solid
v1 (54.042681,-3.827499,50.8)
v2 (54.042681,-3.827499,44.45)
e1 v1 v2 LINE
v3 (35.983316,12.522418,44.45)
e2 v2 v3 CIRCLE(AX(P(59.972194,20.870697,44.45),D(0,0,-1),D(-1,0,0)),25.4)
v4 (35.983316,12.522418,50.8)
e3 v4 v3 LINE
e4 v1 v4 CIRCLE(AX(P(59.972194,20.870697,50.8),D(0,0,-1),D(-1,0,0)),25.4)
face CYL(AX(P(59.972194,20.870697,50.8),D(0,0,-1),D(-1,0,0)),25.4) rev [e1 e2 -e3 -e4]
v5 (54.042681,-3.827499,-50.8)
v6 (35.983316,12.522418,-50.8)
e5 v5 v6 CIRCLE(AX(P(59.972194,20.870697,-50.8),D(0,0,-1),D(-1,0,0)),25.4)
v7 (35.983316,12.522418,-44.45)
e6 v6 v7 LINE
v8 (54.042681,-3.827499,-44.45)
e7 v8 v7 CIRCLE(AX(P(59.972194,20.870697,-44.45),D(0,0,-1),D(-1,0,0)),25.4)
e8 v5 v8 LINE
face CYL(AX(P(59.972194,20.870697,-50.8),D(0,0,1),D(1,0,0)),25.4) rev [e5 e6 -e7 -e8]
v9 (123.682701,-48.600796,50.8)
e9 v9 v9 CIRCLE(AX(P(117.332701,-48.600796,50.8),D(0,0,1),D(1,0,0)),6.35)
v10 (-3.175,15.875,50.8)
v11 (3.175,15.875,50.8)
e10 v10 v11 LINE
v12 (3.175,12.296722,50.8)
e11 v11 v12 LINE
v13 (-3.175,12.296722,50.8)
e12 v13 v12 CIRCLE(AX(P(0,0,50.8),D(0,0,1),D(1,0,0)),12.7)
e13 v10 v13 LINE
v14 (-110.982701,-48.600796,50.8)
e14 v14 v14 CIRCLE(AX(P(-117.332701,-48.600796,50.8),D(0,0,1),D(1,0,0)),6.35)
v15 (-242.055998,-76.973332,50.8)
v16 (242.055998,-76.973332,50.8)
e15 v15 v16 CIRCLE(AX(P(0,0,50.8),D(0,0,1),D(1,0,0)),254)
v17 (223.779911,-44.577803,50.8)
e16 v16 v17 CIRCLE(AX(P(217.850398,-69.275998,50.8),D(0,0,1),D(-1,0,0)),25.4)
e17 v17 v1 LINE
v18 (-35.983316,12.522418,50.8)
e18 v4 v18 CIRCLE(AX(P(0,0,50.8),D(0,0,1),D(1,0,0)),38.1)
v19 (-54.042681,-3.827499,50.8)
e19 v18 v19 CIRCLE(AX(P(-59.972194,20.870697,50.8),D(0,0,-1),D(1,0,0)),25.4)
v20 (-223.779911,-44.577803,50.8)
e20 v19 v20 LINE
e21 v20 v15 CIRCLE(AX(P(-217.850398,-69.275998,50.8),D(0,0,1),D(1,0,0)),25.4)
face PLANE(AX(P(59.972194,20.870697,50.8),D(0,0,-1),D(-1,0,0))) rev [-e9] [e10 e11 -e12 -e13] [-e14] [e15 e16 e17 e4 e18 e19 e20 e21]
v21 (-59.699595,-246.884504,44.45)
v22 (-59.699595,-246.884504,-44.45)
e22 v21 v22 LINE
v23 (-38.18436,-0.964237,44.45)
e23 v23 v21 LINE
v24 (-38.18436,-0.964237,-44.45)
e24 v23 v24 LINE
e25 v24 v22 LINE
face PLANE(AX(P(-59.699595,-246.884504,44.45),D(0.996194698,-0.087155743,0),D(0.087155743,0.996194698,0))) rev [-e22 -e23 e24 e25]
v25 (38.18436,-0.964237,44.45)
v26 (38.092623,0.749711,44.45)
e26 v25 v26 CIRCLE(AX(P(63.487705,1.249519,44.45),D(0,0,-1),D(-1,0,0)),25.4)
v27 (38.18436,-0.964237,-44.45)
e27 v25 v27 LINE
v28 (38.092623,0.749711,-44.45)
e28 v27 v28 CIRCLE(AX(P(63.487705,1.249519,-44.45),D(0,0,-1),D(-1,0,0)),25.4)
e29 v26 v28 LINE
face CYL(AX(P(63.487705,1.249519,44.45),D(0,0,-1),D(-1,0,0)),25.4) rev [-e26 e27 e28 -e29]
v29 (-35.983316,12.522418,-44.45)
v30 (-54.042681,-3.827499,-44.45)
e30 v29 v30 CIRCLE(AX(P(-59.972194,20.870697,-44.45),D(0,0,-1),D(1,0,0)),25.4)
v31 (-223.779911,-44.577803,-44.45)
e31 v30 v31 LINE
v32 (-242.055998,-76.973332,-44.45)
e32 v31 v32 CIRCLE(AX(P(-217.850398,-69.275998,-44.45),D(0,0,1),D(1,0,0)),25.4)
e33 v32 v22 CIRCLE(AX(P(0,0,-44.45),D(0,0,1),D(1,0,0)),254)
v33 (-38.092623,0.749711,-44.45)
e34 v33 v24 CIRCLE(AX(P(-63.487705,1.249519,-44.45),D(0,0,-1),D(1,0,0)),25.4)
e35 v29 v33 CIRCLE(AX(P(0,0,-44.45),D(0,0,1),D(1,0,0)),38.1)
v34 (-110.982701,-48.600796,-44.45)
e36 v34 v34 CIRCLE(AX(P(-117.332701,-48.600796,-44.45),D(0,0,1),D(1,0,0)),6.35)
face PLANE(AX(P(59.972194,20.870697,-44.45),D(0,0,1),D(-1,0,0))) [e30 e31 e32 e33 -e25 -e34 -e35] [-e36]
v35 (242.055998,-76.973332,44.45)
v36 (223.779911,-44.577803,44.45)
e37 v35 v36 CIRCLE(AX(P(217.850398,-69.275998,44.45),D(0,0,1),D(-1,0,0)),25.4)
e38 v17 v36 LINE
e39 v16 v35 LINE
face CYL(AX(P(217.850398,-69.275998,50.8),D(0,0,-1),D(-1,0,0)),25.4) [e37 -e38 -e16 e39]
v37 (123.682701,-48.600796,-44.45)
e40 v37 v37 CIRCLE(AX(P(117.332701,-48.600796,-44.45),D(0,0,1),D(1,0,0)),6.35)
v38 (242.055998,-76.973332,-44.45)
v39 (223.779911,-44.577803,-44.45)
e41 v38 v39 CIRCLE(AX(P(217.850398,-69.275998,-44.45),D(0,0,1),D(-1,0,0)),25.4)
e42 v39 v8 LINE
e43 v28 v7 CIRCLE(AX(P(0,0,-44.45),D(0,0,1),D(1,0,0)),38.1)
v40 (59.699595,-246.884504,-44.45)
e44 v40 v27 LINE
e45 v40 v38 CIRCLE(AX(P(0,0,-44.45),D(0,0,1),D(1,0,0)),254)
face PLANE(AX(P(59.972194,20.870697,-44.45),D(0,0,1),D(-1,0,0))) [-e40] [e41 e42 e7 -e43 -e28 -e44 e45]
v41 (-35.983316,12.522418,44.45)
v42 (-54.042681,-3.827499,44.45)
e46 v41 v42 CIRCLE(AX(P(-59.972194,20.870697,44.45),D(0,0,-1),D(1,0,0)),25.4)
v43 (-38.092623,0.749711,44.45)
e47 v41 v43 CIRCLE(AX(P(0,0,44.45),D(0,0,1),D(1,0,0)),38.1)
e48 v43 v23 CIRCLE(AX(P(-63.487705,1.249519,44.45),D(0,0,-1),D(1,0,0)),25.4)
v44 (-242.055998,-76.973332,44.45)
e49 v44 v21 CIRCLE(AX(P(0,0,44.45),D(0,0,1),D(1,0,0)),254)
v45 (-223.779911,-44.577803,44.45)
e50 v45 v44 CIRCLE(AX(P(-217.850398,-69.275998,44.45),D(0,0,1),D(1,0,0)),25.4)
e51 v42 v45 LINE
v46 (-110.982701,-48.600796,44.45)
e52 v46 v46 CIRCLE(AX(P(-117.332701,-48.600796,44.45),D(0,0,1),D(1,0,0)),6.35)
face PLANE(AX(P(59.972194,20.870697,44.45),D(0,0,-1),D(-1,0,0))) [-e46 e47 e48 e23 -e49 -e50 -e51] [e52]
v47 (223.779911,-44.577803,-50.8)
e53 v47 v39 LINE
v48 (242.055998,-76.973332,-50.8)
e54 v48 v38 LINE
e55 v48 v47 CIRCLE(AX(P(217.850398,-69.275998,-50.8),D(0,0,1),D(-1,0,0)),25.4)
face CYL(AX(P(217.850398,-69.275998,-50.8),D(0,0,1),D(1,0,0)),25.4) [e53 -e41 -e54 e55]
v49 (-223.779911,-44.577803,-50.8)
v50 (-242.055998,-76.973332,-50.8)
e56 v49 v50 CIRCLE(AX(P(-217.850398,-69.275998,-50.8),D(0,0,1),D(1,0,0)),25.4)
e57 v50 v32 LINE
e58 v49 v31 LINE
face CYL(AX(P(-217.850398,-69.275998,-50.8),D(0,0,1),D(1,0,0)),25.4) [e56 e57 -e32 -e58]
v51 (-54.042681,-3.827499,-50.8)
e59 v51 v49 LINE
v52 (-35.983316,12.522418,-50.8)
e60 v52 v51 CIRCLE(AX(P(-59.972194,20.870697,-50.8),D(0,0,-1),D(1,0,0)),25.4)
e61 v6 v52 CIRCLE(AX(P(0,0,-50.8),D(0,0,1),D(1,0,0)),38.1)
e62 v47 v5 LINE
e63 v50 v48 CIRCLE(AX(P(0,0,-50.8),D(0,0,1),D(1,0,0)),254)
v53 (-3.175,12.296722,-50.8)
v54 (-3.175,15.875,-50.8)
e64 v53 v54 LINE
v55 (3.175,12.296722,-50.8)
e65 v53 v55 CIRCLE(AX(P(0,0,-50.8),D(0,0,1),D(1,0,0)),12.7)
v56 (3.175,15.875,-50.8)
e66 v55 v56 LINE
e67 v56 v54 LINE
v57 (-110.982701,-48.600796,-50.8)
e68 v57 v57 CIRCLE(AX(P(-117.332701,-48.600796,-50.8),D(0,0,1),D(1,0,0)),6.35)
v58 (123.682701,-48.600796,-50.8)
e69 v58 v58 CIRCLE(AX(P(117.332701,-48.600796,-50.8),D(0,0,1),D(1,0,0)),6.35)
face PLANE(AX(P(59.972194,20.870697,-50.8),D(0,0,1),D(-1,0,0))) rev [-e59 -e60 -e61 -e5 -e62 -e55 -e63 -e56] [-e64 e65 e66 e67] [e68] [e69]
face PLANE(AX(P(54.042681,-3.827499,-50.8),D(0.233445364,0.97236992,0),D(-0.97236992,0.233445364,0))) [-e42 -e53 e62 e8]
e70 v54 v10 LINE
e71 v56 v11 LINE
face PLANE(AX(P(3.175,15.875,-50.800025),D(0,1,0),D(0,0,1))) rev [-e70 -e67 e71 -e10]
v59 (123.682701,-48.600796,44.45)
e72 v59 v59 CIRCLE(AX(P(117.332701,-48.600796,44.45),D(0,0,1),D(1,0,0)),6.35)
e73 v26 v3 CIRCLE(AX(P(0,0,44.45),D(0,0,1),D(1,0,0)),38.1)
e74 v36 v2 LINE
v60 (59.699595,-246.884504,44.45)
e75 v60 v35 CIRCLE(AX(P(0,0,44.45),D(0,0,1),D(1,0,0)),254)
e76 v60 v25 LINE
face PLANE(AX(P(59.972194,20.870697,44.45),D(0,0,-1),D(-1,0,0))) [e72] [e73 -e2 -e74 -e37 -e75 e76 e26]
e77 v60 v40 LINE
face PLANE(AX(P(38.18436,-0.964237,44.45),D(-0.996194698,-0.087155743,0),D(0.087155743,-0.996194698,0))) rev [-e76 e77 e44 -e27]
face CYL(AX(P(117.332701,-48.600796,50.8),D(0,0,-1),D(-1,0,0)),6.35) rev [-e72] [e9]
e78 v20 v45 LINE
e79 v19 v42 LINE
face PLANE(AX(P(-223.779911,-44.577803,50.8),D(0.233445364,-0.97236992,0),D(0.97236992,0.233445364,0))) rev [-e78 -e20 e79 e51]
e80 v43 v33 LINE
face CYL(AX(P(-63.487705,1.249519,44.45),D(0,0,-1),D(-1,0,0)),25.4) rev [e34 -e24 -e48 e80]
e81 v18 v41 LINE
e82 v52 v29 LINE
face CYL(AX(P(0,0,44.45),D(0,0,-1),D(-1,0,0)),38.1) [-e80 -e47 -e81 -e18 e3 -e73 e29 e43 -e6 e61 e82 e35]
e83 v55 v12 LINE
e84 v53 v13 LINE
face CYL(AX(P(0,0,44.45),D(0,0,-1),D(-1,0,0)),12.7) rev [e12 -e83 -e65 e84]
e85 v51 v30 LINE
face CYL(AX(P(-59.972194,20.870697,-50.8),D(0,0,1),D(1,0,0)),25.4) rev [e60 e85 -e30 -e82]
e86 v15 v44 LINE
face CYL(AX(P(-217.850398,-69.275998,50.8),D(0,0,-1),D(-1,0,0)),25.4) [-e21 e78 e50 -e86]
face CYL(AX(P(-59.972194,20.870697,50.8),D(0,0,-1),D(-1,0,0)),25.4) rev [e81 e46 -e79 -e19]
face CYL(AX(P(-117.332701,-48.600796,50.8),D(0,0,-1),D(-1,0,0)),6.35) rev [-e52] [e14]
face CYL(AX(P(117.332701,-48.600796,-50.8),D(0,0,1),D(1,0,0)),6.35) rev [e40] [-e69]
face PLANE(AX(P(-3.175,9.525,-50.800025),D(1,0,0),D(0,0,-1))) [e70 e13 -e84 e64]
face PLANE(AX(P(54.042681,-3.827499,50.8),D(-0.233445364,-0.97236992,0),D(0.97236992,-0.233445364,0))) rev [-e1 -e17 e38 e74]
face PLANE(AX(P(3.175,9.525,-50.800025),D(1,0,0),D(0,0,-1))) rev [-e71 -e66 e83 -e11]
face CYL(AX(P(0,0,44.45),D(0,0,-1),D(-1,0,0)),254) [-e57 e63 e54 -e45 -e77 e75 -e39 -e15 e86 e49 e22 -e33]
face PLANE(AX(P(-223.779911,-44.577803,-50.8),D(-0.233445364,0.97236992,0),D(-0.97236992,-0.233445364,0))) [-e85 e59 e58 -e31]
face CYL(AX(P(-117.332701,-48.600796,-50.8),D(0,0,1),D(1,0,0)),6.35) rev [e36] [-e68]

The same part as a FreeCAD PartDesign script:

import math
import FreeCAD as App
import Part
import Sketcher

V = App.Vector
Q = App.Units.Quantity


def add_polygon(sketch, points):
    """Adds a closed chain of lines whose ends are joined by coincident constraints."""
    first, n = sketch.GeometryCount, len(points)
    for a, b in zip(points, points[1:] + points[:1]):
        sketch.addGeometry(Part.LineSegment(App.Vector(*a, 0), App.Vector(*b, 0)), False)
    for i in range(n):
        sketch.addConstraint(Sketcher.Constraint("Coincident", first + i, 2, first + (i + 1) % n, 1))

doc = App.newDocument("Part")
body = doc.addObject("PartDesign::Body", "Body")

sketch1 = body.newObject("Sketcher::SketchObject", "Sketch")
sketch1.AttachmentSupport = (doc.getObject("XY_Plane"), [""])
sketch1.MapMode = "FlatFace"
sketch1.addGeometry([
    Part.LineSegment(V(-38.2, -1, 0), V(-59.7, -246.9, 0)),
    Part.ArcOfCircle(Part.Circle(V(0, 0, 0), V(0, 0, 1), 254), math.radians(-104), math.radians(-76)),
    Part.LineSegment(V(59.7, -246.9, 0), V(38.2, -1, 0)),
    Part.ArcOfCircle(Part.Circle(V(63.5, 1.2, 0), V(0, 0, 1), 25.4), math.radians(-178.87), math.radians(-175)),
    Part.ArcOfCircle(Part.Circle(V(0, 0, 0), V(0, 0, 1), 38.1), math.radians(1), math.radians(179)),
    Part.ArcOfCircle(Part.Circle(V(-63.5, 1.2, 0), V(0, 0, 1), 25.4), math.radians(-5), math.radians(-1.13)),
    Part.Circle(V(0, 0, 0), V(0, 0, 1), 12.7),
], False)
sketch1.addConstraint([
    Sketcher.Constraint("Coincident", 0, 2, 1, 1),
    Sketcher.Constraint("Coincident", 1, 2, 2, 1),
    Sketcher.Constraint("Tangent", 2, 2, 3, 2),
    Sketcher.Constraint("Tangent", 3, 1, 4, 1),
    Sketcher.Constraint("Tangent", 4, 2, 5, 2),
    Sketcher.Constraint("Tangent", 5, 1, 0, 1),
    Sketcher.Constraint("Coincident", 1, 3, -1, 1),
    Sketcher.Constraint("Coincident", 4, 3, -1, 1),
    Sketcher.Constraint("Coincident", 6, 3, -1, 1),
    Sketcher.Constraint("Equal", 3, 5),
    Sketcher.Constraint("Symmetric", 2, 2, 5, 1, -2),
    Sketcher.Constraint("Diameter", 6, Q("1 in")),
    Sketcher.Constraint("Radius", 1, Q("10 in")),
    Sketcher.Constraint("Radius", 3, Q("1 in")),
    Sketcher.Constraint("Radius", 4, Q("1.5 in")),
    Sketcher.Constraint("Angle", 0, Q("-95 deg")),
    Sketcher.Constraint("DistanceX", 0, 2, 3, 3, 123.187301),
])
pad1 = body.newObject("PartDesign::Pad", "Pad")
pad1.Profile = sketch1
pad1.Length = Q("3.5 in")
pad1.Midplane = True

sketch2 = body.newObject("Sketcher::SketchObject", "Sketch001")
sketch2.AttachmentSupport = (doc.getObject("XY_Plane"), [""])
sketch2.MapMode = "FlatFace"
sketch2.AttachmentOffset = App.Placement(V(0, 0, 1.75 * 25.4), App.Rotation())
sketch2.addGeometry([
    Part.LineSegment(V(-54, -4, 0), V(-224, -45, 0)),
    Part.ArcOfCircle(Part.Circle(V(-218, -69, 0), V(0, 0, 1), 25), math.radians(103), math.radians(198)),
    Part.ArcOfCircle(Part.Circle(V(0, 0, 0), V(0, 0, 1), 254), math.radians(-162), math.radians(-18)),
    Part.ArcOfCircle(Part.Circle(V(218, -69, 0), V(0, 0, 1), 25), math.radians(-18), math.radians(77)),
    Part.LineSegment(V(224, -45, 0), V(54, -4, 0)),
    Part.ArcOfCircle(Part.Circle(V(60, 21, 0), V(0, 0, 1), 25), math.radians(-161), math.radians(-104)),
    Part.ArcOfCircle(Part.Circle(V(0, 0, 0), V(0, 0, 1), 38), math.radians(19), math.radians(161)),
    Part.ArcOfCircle(Part.Circle(V(-60, 21, 0), V(0, 0, 1), 25), math.radians(-76), math.radians(-19)),
    Part.Circle(V(117, -49, 0), V(0, 0, 1), 6),
    Part.Circle(V(-117, -49, 0), V(0, 0, 1), 6),
    Part.Circle(V(0, 0, 0), V(0, 0, 1), 13),
], False)
sketch2.addConstraint([
    Sketcher.Constraint("Tangent", 0, 2, 1, 1),
    Sketcher.Constraint("Tangent", 1, 2, 2, 1),
    Sketcher.Constraint("Tangent", 2, 2, 3, 1),
    Sketcher.Constraint("Tangent", 3, 2, 4, 1),
    Sketcher.Constraint("Tangent", 4, 2, 5, 2),
    Sketcher.Constraint("Tangent", 5, 1, 6, 1),
    Sketcher.Constraint("Tangent", 6, 2, 7, 2),
    Sketcher.Constraint("Tangent", 7, 1, 0, 1),
    Sketcher.Constraint("Coincident", 2, 3, -1, 1),
    Sketcher.Constraint("Coincident", 6, 3, -1, 1),
    Sketcher.Constraint("Coincident", 10, 3, -1, 1),
    Sketcher.Constraint("Equal", 1, 3),
    Sketcher.Constraint("Equal", 3, 5),
    Sketcher.Constraint("Equal", 5, 7),
    Sketcher.Constraint("Equal", 8, 9),
    Sketcher.Constraint("Symmetric", 8, 3, 9, 3, -2),
    Sketcher.Constraint("Symmetric", 0, 2, 3, 2, -2),
    Sketcher.Constraint("Diameter", 10, Q("1 in")),
    Sketcher.Constraint("Radius", 1, Q("1 in")),
    Sketcher.Constraint("Radius", 2, Q("10 in")),
    Sketcher.Constraint("Diameter", 8, Q("0.5 in")),
    Sketcher.Constraint("Radius", 6, Q("1.5 in")),
    Sketcher.Constraint("Angle", 0, Q("-166.5 deg")),
    Sketcher.Constraint("DistanceX", 1, 3, -1, 1, 217.850398),
    Sketcher.Constraint("DistanceX", -1, 1, 8, 3, 117.332701),
    Sketcher.Constraint("DistanceY", 8, 3, -1, 1, 48.600796),
])
pad2 = body.newObject("PartDesign::Pad", "Pad001")
pad2.Profile = sketch2
pad2.Length = Q("0.25 in")
doc.recompute()

mirrored = body.newObject("PartDesign::Mirrored", "Mirrored")
mirrored.Originals = [pad2]
mirrored.MirrorPlane = (doc.getObject("XY_Plane"), [""])
body.Tip = mirrored

sketch3 = body.newObject("Sketcher::SketchObject", "Sketch002")
sketch3.AttachmentSupport = (doc.getObject("XY_Plane"), [""])
sketch3.MapMode = "FlatFace"
add_polygon(sketch3, [(-3, 16), (-3, 10), (3, 10), (3, 16)])
sketch3.addConstraint([
    Sketcher.Constraint("Vertical", 0),
    Sketcher.Constraint("Horizontal", 1),
    Sketcher.Constraint("Vertical", 2),
    Sketcher.Constraint("Horizontal", 3),
    Sketcher.Constraint("Equal", 3, 0),
    Sketcher.Constraint("DistanceX", 1, 1, 1, 2, Q("0.25 in")),
    Sketcher.Constraint("DistanceX", 0, 2, -1, 1, Q("0.125 in")),
    Sketcher.Constraint("DistanceY", -1, 1, 0, 2, Q("0.375 in")),
])
pocket1 = body.newObject("PartDesign::Pocket", "Pocket")
pocket1.Profile = sketch3
pocket1.Type = "ThroughAll"
pocket1.Midplane = True

doc.recompute()
